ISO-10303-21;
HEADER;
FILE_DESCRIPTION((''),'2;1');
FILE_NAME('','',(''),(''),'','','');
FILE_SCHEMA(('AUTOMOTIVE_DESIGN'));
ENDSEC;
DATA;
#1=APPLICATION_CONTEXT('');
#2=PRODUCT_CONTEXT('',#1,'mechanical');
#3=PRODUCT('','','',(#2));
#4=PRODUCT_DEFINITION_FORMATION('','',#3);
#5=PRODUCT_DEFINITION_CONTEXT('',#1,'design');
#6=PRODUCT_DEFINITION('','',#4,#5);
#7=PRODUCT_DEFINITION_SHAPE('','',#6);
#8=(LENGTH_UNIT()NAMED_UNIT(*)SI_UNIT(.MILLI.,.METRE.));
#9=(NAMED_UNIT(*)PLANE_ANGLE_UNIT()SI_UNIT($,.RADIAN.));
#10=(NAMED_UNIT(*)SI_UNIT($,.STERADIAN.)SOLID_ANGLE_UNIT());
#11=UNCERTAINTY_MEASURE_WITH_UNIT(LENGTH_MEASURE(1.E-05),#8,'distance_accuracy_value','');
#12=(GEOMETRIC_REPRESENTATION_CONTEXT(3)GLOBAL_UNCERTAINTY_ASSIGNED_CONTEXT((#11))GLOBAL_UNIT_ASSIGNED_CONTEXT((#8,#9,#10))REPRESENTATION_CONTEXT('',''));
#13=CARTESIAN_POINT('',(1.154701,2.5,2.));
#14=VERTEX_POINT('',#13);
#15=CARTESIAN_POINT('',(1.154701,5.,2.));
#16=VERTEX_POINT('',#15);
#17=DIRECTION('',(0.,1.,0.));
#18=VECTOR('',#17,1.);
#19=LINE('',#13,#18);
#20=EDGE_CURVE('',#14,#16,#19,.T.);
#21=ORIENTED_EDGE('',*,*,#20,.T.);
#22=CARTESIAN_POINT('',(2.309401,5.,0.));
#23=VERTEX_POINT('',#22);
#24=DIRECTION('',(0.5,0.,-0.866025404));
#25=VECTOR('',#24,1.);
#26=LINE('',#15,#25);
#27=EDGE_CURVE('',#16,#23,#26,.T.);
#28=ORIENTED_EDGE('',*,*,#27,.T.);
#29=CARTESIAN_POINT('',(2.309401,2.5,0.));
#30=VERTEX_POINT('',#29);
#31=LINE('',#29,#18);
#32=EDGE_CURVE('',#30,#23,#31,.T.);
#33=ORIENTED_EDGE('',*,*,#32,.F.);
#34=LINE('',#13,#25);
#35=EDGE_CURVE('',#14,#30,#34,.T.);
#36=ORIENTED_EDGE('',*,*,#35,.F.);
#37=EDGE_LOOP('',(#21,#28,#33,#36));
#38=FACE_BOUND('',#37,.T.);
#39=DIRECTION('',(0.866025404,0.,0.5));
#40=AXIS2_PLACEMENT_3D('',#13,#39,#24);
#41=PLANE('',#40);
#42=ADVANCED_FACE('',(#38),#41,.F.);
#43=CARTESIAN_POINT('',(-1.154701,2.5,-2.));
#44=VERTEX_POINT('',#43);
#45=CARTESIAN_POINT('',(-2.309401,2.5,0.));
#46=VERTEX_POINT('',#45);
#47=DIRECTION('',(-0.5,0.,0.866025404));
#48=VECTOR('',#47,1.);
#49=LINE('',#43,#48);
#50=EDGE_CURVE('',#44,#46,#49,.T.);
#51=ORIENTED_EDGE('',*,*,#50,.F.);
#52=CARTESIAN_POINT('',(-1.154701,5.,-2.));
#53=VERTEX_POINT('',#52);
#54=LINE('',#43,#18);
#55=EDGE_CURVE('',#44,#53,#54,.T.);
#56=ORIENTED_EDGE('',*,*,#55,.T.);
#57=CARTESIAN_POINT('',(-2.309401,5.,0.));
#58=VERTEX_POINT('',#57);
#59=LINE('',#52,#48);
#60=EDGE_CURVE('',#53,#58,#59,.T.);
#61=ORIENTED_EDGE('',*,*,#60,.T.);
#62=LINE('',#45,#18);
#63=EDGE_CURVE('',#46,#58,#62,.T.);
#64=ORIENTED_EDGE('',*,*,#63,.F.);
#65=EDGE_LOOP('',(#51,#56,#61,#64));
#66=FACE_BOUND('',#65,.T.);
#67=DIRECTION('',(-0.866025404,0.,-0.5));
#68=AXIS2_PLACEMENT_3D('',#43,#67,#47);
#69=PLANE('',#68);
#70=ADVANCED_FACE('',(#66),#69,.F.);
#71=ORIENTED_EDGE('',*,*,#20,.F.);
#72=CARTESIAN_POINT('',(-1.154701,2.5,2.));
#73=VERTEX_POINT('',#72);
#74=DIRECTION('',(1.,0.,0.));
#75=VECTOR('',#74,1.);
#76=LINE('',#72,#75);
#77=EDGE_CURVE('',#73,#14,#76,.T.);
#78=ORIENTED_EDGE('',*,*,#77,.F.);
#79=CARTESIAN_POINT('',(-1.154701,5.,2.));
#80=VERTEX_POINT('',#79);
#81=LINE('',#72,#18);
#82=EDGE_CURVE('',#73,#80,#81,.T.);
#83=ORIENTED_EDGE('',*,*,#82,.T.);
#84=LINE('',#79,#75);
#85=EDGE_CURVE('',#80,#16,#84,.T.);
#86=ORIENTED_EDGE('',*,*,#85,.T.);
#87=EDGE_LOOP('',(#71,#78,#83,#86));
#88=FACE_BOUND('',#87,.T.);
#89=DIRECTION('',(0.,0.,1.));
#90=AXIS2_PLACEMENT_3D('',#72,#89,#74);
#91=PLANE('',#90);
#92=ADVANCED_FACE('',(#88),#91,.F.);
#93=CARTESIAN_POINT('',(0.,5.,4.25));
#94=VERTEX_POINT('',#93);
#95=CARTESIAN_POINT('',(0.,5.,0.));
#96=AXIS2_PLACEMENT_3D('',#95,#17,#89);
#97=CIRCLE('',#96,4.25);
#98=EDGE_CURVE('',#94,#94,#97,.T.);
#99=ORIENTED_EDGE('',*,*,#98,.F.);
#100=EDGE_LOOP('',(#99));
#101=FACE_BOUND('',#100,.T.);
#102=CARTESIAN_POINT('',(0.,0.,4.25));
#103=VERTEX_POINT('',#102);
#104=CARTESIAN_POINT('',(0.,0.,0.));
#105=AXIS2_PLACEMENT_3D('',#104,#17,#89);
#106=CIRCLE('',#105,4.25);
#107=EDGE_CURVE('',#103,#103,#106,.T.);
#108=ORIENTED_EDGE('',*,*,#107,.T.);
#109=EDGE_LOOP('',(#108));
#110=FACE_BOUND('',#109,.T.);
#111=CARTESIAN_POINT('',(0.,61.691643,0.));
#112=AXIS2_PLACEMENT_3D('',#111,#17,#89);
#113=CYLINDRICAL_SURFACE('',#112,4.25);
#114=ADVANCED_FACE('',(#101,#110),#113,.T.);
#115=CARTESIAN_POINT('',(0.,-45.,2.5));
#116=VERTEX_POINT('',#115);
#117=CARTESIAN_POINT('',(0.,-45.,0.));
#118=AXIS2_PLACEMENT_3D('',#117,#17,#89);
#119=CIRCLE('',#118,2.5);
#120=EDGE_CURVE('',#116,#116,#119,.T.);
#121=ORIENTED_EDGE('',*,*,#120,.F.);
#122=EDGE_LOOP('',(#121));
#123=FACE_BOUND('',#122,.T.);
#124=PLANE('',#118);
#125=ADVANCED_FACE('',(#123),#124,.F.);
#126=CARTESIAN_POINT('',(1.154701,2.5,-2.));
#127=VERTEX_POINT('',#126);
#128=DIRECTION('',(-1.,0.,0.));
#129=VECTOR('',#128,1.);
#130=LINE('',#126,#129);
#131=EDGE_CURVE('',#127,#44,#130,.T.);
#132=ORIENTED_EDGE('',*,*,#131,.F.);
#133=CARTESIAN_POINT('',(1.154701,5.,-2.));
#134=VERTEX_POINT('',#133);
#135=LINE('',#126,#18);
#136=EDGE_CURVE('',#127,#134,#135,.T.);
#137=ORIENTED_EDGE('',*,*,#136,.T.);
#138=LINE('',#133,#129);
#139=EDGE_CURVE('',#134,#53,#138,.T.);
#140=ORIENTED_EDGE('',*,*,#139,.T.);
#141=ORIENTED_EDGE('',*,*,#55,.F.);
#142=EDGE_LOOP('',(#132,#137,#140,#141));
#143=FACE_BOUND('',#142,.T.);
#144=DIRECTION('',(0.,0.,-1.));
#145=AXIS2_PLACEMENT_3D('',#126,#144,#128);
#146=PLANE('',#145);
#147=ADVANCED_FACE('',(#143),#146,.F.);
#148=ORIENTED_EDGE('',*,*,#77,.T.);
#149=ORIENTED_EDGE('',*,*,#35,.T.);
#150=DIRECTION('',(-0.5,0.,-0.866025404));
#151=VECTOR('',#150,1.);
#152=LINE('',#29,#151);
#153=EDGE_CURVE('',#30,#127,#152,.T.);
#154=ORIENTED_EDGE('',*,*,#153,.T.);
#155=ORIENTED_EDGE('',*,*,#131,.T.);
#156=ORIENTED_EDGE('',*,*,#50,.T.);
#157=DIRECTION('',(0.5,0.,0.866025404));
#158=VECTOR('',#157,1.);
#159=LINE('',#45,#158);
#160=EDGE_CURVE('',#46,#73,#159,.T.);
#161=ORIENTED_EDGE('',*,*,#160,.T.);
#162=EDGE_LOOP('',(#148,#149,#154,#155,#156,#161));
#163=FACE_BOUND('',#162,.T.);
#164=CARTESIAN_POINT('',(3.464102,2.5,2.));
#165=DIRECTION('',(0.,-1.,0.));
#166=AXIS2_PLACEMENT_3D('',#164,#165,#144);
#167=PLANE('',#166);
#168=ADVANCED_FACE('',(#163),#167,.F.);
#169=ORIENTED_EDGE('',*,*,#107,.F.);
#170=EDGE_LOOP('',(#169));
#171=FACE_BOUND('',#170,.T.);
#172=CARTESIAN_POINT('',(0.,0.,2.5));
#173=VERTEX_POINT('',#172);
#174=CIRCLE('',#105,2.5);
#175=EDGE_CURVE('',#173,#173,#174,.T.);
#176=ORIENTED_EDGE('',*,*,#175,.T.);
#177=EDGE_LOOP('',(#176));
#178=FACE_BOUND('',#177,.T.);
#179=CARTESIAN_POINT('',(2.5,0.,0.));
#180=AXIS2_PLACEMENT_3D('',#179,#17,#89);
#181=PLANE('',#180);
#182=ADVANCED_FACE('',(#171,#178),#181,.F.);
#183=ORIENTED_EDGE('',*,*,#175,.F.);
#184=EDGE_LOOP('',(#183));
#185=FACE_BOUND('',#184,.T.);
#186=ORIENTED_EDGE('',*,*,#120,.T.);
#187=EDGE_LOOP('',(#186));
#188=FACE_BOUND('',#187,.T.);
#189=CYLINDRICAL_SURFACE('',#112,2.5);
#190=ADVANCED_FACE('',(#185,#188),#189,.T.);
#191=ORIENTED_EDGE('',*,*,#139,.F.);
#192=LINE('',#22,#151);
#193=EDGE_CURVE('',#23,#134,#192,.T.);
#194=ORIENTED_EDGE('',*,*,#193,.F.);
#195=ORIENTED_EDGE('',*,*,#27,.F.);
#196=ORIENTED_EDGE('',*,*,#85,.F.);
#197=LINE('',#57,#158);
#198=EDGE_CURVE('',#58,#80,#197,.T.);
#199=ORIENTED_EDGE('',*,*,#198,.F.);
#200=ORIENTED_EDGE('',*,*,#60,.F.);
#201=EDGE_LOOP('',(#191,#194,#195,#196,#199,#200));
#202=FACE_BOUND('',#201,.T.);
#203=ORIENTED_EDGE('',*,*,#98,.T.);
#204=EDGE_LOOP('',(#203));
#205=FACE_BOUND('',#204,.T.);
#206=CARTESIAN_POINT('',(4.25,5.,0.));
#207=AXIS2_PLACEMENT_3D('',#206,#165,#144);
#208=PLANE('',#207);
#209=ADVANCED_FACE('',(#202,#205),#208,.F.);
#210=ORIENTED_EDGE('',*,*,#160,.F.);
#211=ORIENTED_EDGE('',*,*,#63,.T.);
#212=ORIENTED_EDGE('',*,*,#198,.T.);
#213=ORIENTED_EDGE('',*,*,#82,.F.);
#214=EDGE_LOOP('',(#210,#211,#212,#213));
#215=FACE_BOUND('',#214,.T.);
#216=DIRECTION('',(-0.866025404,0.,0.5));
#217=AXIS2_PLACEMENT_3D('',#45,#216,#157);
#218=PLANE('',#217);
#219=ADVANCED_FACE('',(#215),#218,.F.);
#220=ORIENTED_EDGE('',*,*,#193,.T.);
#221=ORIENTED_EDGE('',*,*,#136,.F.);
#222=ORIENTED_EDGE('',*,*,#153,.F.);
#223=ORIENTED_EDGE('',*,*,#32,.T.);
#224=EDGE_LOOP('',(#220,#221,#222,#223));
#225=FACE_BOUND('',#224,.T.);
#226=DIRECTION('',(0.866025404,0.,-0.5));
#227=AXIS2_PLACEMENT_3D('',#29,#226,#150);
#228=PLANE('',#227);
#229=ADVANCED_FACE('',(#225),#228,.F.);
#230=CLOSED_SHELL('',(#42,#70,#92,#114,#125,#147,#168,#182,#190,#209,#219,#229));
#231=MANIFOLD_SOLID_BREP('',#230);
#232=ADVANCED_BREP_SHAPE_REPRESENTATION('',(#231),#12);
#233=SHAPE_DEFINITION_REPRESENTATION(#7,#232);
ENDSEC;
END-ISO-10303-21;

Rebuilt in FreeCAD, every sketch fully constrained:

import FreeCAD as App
import Part
import Sketcher
from FreeCAD import Vector
Q = App.Units.Quantity


def add_polygon(sketch, points):
    """Adds a closed chain of lines whose ends are joined by coincident constraints."""
    first, n = sketch.GeometryCount, len(points)
    for a, b in zip(points, points[1:] + points[:1]):
        sketch.addGeometry(Part.LineSegment(App.Vector(*a, 0), App.Vector(*b, 0)), False)
    for i in range(n):
        sketch.addConstraint(Sketcher.Constraint("Coincident", first + i, 2, first + (i + 1) % n, 1))

doc = App.newDocument("Part")
body = doc.addObject("PartDesign::Body", "Body")

sketch1 = body.newObject("Sketcher::SketchObject", "Sketch")
sketch1.AttachmentSupport = (doc.getObject("XY_Plane"), [""])
sketch1.MapMode = "FlatFace"
add_polygon(sketch1, [(0, -45), (2.5, -45), (2.5, 0), (4.2, 0), (4.2, 5), (0, 5)])
sketch1.addConstraint([
    Sketcher.Constraint("Horizontal", 0),
    Sketcher.Constraint("Vertical", 1),
    Sketcher.Constraint("Horizontal", 2),
    Sketcher.Constraint("Vertical", 3),
    Sketcher.Constraint("Horizontal", 4),
    Sketcher.Constraint("Vertical", 5),
    Sketcher.Constraint("PointOnObject", 1, 2, -1),
    Sketcher.Constraint("PointOnObject", 4, 2, -2),
    Sketcher.Constraint("DistanceY", 1, 1, 1, 2, Q("45 mm")),
    Sketcher.Constraint("DistanceY", 3, 1, 3, 2, Q("5 mm")),
    Sketcher.Constraint("DistanceX", 0, 1, 0, 2, Q("2.5 mm")),
    Sketcher.Constraint("DistanceX", 2, 1, 2, 2, Q("1.75 mm")),
])
revolution = body.newObject("PartDesign::Revolution", "Revolution")
revolution.Profile = sketch1
revolution.ReferenceAxis = (sketch1, ["V_Axis"])
revolution.Angle = 360

sketch2 = body.newObject("Sketcher::SketchObject", "Sketch001")
sketch2.AttachmentSupport = (doc.getObject("XZ_Plane"), [""])
sketch2.MapMode = "FlatFace"
sketch2.AttachmentOffset = App.Placement(Vector(0, 0, -5), App.Rotation())
add_polygon(sketch2, [(1.2, -2), (-1.2, -2), (-2.3, 0), (-1.2, 2), (1.2, 2), (2.3, 0)])
sketch2.addConstraint([
    Sketcher.Constraint("Horizontal", 0),
    Sketcher.Constraint("Horizontal", 3),
    Sketcher.Constraint("Symmetric", 0, 2, 3, 2, -1, 1),
    Sketcher.Constraint("Symmetric", 1, 2, 4, 2, -1, 1),
    Sketcher.Constraint("PointOnObject", 1, 2, -1),
    Sketcher.Constraint("Parallel", 2, 5),
    Sketcher.Constraint("Vertical", 0, 2, 2, 2),
    Sketcher.Constraint("Angle", 1, Q("120 deg")),
    Sketcher.Constraint("DistanceY", 0, 2, -1, 1, Q("2 mm")),
    Sketcher.Constraint("DistanceX", 0, 2, 0, 1, Q("2.309401 mm")),
])
pocket1 = body.newObject("PartDesign::Pocket", "Pocket")
pocket1.Profile = sketch2
pocket1.Length = 2.5
pocket1.Reversed = True

doc.recompute()
